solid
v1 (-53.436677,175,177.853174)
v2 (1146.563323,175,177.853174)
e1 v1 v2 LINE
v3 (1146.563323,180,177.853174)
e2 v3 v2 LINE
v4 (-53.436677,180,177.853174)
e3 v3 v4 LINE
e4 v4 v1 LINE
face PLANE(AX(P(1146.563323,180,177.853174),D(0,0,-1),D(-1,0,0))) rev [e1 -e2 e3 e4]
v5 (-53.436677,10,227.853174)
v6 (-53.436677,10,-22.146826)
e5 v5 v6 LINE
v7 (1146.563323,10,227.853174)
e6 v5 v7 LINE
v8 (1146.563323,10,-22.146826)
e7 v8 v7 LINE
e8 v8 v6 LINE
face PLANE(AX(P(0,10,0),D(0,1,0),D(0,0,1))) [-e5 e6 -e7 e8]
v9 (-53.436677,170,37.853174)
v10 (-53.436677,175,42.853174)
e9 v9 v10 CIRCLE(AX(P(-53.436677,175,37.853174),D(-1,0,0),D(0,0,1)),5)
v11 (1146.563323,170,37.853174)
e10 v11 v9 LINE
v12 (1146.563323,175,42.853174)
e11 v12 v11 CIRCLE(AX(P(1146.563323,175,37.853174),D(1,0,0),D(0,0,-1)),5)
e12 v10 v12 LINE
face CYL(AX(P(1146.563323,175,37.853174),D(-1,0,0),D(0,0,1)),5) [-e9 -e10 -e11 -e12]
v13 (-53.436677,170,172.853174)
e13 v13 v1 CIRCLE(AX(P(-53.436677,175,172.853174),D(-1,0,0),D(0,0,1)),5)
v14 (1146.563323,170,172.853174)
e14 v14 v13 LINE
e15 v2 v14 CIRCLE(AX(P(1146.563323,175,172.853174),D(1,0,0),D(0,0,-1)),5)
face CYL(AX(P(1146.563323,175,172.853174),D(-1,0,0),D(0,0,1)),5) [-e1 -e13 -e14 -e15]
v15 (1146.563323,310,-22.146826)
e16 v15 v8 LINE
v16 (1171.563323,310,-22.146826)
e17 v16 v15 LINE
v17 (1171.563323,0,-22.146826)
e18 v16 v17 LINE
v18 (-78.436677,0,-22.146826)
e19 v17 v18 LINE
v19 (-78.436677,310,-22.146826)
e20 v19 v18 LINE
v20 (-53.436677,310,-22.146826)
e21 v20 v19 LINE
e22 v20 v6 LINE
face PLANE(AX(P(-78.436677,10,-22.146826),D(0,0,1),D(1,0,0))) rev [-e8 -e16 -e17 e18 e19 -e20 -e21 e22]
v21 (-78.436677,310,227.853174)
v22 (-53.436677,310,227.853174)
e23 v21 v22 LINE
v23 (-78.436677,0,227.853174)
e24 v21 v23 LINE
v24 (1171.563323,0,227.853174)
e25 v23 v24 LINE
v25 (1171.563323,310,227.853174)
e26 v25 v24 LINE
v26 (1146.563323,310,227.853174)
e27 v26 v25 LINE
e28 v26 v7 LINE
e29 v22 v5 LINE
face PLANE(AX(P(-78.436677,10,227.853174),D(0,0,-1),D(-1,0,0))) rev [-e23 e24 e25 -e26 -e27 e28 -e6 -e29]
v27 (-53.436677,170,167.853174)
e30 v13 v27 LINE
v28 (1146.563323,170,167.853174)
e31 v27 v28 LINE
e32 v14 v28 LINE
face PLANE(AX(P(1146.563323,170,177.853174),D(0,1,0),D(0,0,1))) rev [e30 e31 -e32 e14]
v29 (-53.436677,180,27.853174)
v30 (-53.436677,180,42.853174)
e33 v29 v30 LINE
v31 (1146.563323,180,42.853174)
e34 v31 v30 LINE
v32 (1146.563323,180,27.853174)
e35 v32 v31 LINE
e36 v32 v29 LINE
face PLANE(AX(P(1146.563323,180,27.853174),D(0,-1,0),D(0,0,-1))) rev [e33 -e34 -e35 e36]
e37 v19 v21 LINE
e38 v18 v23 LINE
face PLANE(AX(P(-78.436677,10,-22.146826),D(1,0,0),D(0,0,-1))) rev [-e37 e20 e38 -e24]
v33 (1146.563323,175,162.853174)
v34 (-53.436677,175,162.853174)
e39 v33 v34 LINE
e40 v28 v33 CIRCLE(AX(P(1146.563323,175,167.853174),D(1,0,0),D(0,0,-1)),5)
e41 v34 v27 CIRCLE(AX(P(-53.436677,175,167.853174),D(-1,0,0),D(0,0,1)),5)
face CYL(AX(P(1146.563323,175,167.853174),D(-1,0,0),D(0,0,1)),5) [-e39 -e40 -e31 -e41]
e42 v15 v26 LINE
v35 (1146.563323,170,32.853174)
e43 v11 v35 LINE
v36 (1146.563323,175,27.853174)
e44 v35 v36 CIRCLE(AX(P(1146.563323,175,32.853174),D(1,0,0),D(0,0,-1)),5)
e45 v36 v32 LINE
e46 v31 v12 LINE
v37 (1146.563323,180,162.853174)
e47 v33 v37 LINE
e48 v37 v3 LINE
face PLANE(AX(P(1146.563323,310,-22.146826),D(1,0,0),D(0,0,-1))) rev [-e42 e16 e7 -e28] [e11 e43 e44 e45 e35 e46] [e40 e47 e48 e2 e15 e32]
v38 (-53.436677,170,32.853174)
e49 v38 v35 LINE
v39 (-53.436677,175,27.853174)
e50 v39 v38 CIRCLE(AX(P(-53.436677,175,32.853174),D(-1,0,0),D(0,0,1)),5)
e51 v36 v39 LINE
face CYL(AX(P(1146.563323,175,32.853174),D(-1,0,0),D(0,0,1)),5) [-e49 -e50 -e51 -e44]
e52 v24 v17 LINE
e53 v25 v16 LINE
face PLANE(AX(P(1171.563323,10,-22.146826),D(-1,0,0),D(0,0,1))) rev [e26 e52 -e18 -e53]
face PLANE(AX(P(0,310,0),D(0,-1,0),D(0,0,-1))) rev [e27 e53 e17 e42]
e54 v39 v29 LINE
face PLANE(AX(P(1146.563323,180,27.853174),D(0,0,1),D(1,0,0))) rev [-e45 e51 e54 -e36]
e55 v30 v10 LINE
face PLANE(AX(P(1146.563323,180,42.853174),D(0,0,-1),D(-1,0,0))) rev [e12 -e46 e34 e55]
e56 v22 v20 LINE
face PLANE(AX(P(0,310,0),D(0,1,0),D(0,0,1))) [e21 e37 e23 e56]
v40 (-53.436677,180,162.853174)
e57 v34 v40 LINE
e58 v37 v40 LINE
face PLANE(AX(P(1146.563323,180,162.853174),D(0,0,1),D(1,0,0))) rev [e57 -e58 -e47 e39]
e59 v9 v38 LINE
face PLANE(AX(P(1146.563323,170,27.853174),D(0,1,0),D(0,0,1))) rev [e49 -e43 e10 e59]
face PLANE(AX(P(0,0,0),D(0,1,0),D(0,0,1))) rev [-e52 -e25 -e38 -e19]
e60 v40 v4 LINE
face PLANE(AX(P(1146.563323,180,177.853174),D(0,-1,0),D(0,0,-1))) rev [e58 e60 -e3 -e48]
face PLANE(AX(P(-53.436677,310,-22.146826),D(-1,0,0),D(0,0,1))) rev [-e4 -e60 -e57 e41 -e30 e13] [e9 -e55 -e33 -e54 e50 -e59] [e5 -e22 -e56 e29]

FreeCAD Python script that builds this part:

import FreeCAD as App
import Part
import Sketcher

V = App.Vector
Q = App.Units.Quantity


def edges_at(feature, points):
    """Names of the edges that pass closest to the given points."""
    edges = feature.Shape.Edges
    near = lambda p: min(range(len(edges)), key=lambda i: edges[i].distToShape(Part.Vertex(*p))[0])
    return sorted({f"Edge{near(p) + 1}" for p in points})


def add_polygon(sketch, points):
    """Adds a closed chain of lines whose ends are joined by coincident constraints."""
    first, n = sketch.GeometryCount, len(points)
    for a, b in zip(points, points[1:] + points[:1]):
        sketch.addGeometry(Part.LineSegment(App.Vector(*a, 0), App.Vector(*b, 0)), False)
    for i in range(n):
        sketch.addConstraint(Sketcher.Constraint("Coincident", first + i, 2, first + (i + 1) % n, 1))

doc = App.newDocument("Part")
body = doc.addObject("PartDesign::Body", "Body")

# Sketch on XZ plane
sketch1 = body.newObject("Sketcher::SketchObject", "Sketch")
sketch1.AttachmentSupport = (doc.getObject("XZ_Plane"), [""])
sketch1.MapMode = "FlatFace"
add_polygon(sketch1, [(-78, -22), (-78, 228), (1172, 228), (1172, -22)])  # lines 0-3
sketch1.addConstraint(Sketcher.Constraint("Vertical", 0))
sketch1.addConstraint(Sketcher.Constraint("Horizontal", 1))
sketch1.addConstraint(Sketcher.Constraint("Vertical", 2))
sketch1.addConstraint(Sketcher.Constraint("Horizontal", 3))
sketch1.addConstraint(Sketcher.Constraint("DistanceX", 1, 1, 1, 2, Q("1250 mm")))
sketch1.addConstraint(Sketcher.Constraint("DistanceY", 0, 1, 0, 2, Q("250 mm")))
sketch1.addConstraint(Sketcher.Constraint("DistanceX", 0, 2, -1, 1, Q("78.436677 mm")))
sketch1.addConstraint(Sketcher.Constraint("DistanceY", -1, 1, 0, 2, Q("227.853174 mm")))
pad1 = body.newObject("PartDesign::Pad", "Pad")
pad1.Profile = sketch1
pad1.Length = 10
pad1.Reversed = True

# Sketch on XZ plane
sketch2 = body.newObject("Sketcher::SketchObject", "Sketch001")
sketch2.AttachmentSupport = (doc.getObject("XZ_Plane"), [""])
sketch2.MapMode = "FlatFace"
sketch2.AttachmentOffset = App.Placement(V(0, 0, -10), App.Rotation())
add_polygon(sketch2, [(-78, -22), (-78, 228), (-53, 228), (-53, -22)])  # lines 0-3
add_polygon(sketch2, [(1147, -22), (1147, 228), (1172, 228), (1172, -22)])  # lines 4-7
sketch2.addConstraint(Sketcher.Constraint("Vertical", 0))
sketch2.addConstraint(Sketcher.Constraint("Horizontal", 1))
sketch2.addConstraint(Sketcher.Constraint("Vertical", 2))
sketch2.addConstraint(Sketcher.Constraint("Horizontal", 3))
sketch2.addConstraint(Sketcher.Constraint("Vertical", 4))
sketch2.addConstraint(Sketcher.Constraint("Horizontal", 5))
sketch2.addConstraint(Sketcher.Constraint("Vertical", 6))
sketch2.addConstraint(Sketcher.Constraint("Horizontal", 7))
sketch2.addConstraint(Sketcher.Constraint("Horizontal", 1, 2, 4, 2))
sketch2.addConstraint(Sketcher.Constraint("Horizontal", 3, 2, 6, 2))
sketch2.addConstraint(Sketcher.Constraint("Equal", 3, 5))
sketch2.addConstraint(Sketcher.Constraint("DistanceX", 1, 1, 1, 2, Q("25 mm")))
sketch2.addConstraint(Sketcher.Constraint("DistanceY", 0, 1, 0, 2, Q("250 mm")))
sketch2.addConstraint(Sketcher.Constraint("DistanceX", 1, 2, 4, 2, Q("1200 mm")))
sketch2.addConstraint(Sketcher.Constraint("DistanceX", 0, 2, -1, 1, Q("78.436677 mm")))
sketch2.addConstraint(Sketcher.Constraint("DistanceY", -1, 1, 0, 2, Q("227.853174 mm")))
pad2 = body.newObject("PartDesign::Pad", "Pad001")
pad2.Profile = sketch2
pad2.Length = 300
pad2.Reversed = True

# Sketch on YZ plane
sketch3 = body.newObject("Sketcher::SketchObject", "Sketch002")
sketch3.AttachmentSupport = (doc.getObject("YZ_Plane"), [""])
sketch3.MapMode = "FlatFace"
sketch3.AttachmentOffset = App.Placement(V(0, 0, -53.436677), App.Rotation())
add_polygon(sketch3, [(180, 178), (170, 178), (170, 163), (180, 163)])  # lines 0-3
add_polygon(sketch3, [(180, 43), (170, 43), (170, 28), (180, 28)])  # lines 4-7
sketch3.addConstraint(Sketcher.Constraint("Horizontal", 0))
sketch3.addConstraint(Sketcher.Constraint("Vertical", 1))
sketch3.addConstraint(Sketcher.Constraint("Horizontal", 2))
sketch3.addConstraint(Sketcher.Constraint("Vertical", 3))
sketch3.addConstraint(Sketcher.Constraint("Horizontal", 4))
sketch3.addConstraint(Sketcher.Constraint("Vertical", 5))
sketch3.addConstraint(Sketcher.Constraint("Horizontal", 6))
sketch3.addConstraint(Sketcher.Constraint("Vertical", 7))
sketch3.addConstraint(Sketcher.Constraint("Vertical", 1, 2, 4, 2))
sketch3.addConstraint(Sketcher.Constraint("Vertical", 3, 2, 6, 2))
sketch3.addConstraint(Sketcher.Constraint("Equal", 3, 5))
sketch3.addConstraint(Sketcher.Constraint("DistanceX", 0, 2, 0, 1, Q("10 mm")))
sketch3.addConstraint(Sketcher.Constraint("DistanceY", 1, 2, 1, 1, Q("15 mm")))
sketch3.addConstraint(Sketcher.Constraint("DistanceX", -1, 1, 0, 2, Q("170 mm")))
sketch3.addConstraint(Sketcher.Constraint("DistanceY", 4, 2, 1, 2, Q("120 mm")))
sketch3.addConstraint(Sketcher.Constraint("DistanceY", -1, 1, 0, 2, Q("177.853174 mm")))
pad3 = body.newObject("PartDesign::Pad", "Pad002")
pad3.Profile = sketch3
pad3.Length = 1200
doc.recompute()

fillet = body.newObject("PartDesign::Fillet", "Fillet")
fillet.Base = (pad3, edges_at(pad3, [(546.563, 170, 177.853), (546.563, 170, 162.853)]))
fillet.Radius = 5
doc.recompute()

fillet2 = body.newObject("PartDesign::Fillet", "Fillet001")
fillet2.Base = (fillet, edges_at(fillet, [(546.563, 170, 42.853), (546.563, 170, 27.853)]))
fillet2.Radius = 5

doc.recompute()
